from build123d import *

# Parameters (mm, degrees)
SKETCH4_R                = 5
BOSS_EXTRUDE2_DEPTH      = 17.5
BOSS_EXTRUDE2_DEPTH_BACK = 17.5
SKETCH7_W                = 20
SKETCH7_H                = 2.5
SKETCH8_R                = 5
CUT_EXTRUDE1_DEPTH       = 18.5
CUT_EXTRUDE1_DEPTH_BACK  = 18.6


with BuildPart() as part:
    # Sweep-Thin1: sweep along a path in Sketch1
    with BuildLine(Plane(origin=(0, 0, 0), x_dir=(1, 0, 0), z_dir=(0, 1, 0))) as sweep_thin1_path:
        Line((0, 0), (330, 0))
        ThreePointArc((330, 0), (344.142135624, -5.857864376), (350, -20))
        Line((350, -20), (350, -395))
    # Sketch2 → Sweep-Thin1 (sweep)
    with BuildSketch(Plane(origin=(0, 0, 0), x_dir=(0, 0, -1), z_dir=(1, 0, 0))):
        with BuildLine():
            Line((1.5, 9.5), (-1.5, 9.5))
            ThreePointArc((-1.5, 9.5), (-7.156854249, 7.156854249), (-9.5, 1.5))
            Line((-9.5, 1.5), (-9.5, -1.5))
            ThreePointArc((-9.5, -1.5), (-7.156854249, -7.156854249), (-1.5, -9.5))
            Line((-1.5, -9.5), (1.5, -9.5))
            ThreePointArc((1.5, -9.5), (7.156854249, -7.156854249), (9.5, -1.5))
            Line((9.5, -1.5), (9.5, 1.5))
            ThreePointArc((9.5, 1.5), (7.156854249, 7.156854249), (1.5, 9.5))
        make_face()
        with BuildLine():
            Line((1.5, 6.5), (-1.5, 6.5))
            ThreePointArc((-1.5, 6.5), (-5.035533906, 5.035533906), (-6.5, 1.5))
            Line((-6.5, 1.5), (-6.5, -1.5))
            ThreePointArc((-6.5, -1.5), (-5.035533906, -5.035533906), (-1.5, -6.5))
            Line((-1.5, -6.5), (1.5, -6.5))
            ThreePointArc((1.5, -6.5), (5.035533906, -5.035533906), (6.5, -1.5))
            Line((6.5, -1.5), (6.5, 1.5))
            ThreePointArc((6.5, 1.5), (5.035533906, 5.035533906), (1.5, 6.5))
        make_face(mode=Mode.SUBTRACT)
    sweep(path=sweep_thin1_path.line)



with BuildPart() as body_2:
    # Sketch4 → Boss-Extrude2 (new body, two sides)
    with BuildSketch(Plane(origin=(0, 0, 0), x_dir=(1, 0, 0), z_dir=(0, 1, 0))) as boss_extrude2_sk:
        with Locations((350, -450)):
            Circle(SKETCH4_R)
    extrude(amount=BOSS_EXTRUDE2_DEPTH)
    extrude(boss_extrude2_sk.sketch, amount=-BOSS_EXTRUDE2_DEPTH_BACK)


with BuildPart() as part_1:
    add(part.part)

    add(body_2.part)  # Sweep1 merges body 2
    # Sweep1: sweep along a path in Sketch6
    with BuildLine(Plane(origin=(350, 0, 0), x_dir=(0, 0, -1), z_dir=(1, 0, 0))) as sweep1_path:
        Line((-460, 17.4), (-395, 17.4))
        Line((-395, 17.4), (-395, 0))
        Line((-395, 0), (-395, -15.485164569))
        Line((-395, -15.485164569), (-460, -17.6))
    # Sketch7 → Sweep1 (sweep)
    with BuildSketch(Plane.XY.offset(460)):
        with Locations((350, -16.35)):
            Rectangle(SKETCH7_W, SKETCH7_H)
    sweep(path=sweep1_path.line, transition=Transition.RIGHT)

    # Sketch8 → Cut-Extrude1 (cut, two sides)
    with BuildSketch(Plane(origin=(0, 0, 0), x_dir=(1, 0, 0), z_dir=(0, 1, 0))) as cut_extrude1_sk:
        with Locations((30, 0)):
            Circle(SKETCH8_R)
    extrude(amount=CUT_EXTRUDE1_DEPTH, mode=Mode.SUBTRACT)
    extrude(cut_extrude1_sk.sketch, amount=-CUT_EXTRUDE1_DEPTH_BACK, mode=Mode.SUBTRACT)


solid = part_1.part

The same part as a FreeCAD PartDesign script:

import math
import FreeCAD as App
import Part
import Sketcher
from FreeCAD import Vector

doc = App.newDocument("Part")
params = doc.addObject("Spreadsheet::Sheet", "Params")
for row, (alias, value) in enumerate([
    ("sketch1_radius", "8 mm"),
    ("sketch1_radius2", "5 mm"),
    ("sketch1_width", "3 mm"),
    ("sketch2_radius", "20 mm"),
    ("sketch2_width", "330 mm"),
    ("sketch2_height", "375 mm"),
    ("sketch3_diameter", "10 mm"),
    ("pad1_length", "17.5 mm"),
    ("pad1_length2", "17.5 mm"),
    ("sketch4_width", "20 mm"),
    ("sketch4_height", "2.5 mm"),
    ("sketch5_height", "65 mm"),
    ("sketch6_diameter", "10 mm"),
], start=1):
    params.set(f"A{row}", alias)
    params.set(f"B{row}", "=" + value)
    params.setAlias(f"B{row}", alias)

body = doc.addObject("PartDesign::Body", "Body")

sketch1 = body.newObject("Sketcher::SketchObject", "Sketch")
sketch1.AttachmentSupport = (doc.getObject("YZ_Plane"), [""])
sketch1.MapMode = "FlatFace"
sketch1.addGeometry(Part.LineSegment(Vector(9.5, -1.5, 0), Vector(9.5, 1.5, 0)), False)
sketch1.addGeometry(Part.ArcOfCircle(Part.Circle(Vector(1.5, 1.5, 0), Vector(0, 0, 1), 8), math.radians(0), math.radians(90)), False)
sketch1.addGeometry(Part.LineSegment(Vector(1.5, 9.5, 0), Vector(-1.5, 9.5, 0)), False)
sketch1.addGeometry(Part.ArcOfCircle(Part.Circle(Vector(-1.5, 1.5, 0), Vector(0, 0, 1), 8), math.radians(90), math.radians(180)), False)
sketch1.addGeometry(Part.LineSegment(Vector(-9.5, 1.5, 0), Vector(-9.5, -1.5, 0)), False)
sketch1.addGeometry(Part.ArcOfCircle(Part.Circle(Vector(-1.5, -1.5, 0), Vector(0, 0, 1), 8), math.radians(-180), math.radians(-90)), False)
sketch1.addGeometry(Part.LineSegment(Vector(-1.5, -9.5, 0), Vector(1.5, -9.5, 0)), False)
sketch1.addGeometry(Part.ArcOfCircle(Part.Circle(Vector(1.5, -1.5, 0), Vector(0, 0, 1), 8), math.radians(-90), math.radians(0)), False)
sketch1.addGeometry(Part.LineSegment(Vector(6.5, 1.5, 0), Vector(6.5, -1.5, 0)), False)
sketch1.addGeometry(Part.ArcOfCircle(Part.Circle(Vector(1.5, -1.5, 0), Vector(0, 0, 1), 5), math.radians(-90), math.radians(0)), False)
sketch1.addGeometry(Part.LineSegment(Vector(1.5, -6.5, 0), Vector(-1.5, -6.5, 0)), False)
sketch1.addGeometry(Part.ArcOfCircle(Part.Circle(Vector(-1.5, -1.5, 0), Vector(0, 0, 1), 5), math.radians(180), math.radians(270)), False)
sketch1.addGeometry(Part.LineSegment(Vector(-6.5, -1.5, 0), Vector(-6.5, 1.5, 0)), False)
sketch1.addGeometry(Part.ArcOfCircle(Part.Circle(Vector(-1.5, 1.5, 0), Vector(0, 0, 1), 5), math.radians(90), math.radians(180)), False)
sketch1.addGeometry(Part.LineSegment(Vector(-1.5, 6.5, 0), Vector(1.5, 6.5, 0)), False)
sketch1.addGeometry(Part.ArcOfCircle(Part.Circle(Vector(1.5, 1.5, 0), Vector(0, 0, 1), 5), math.radians(0), math.radians(90)), False)
sketch1.addConstraint(Sketcher.Constraint("Tangent", 0, 2, 1, 1))
sketch1.addConstraint(Sketcher.Constraint("Tangent", 1, 2, 2, 1))
sketch1.addConstraint(Sketcher.Constraint("Tangent", 2, 2, 3, 1))
sketch1.addConstraint(Sketcher.Constraint("Tangent", 3, 2, 4, 1))
sketch1.addConstraint(Sketcher.Constraint("Tangent", 4, 2, 5, 1))
sketch1.addConstraint(Sketcher.Constraint("Tangent", 5, 2, 6, 1))
sketch1.addConstraint(Sketcher.Constraint("Tangent", 6, 2, 7, 1))
sketch1.addConstraint(Sketcher.Constraint("Tangent", 7, 2, 0, 1))
sketch1.addConstraint(Sketcher.Constraint("Tangent", 8, 2, 9, 2))
sketch1.addConstraint(Sketcher.Constraint("Tangent", 9, 1, 10, 1))
sketch1.addConstraint(Sketcher.Constraint("Tangent", 10, 2, 11, 2))
sketch1.addConstraint(Sketcher.Constraint("Tangent", 11, 1, 12, 1))
sketch1.addConstraint(Sketcher.Constraint("Tangent", 12, 2, 13, 2))
sketch1.addConstraint(Sketcher.Constraint("Tangent", 13, 1, 14, 1))
sketch1.addConstraint(Sketcher.Constraint("Tangent", 14, 2, 15, 2))
sketch1.addConstraint(Sketcher.Constraint("Tangent", 15, 1, 8, 1))
sketch1.addConstraint(Sketcher.Constraint("Vertical", 0))
sketch1.addConstraint(Sketcher.Constraint("Horizontal", 2))
sketch1.addConstraint(Sketcher.Constraint("Vertical", 4))
sketch1.addConstraint(Sketcher.Constraint("Horizontal", 6))
sketch1.addConstraint(Sketcher.Constraint("Vertical", 8))
sketch1.addConstraint(Sketcher.Constraint("Horizontal", 10))
sketch1.addConstraint(Sketcher.Constraint("Vertical", 12))
sketch1.addConstraint(Sketcher.Constraint("Horizontal", 14))
sketch1.addConstraint(Sketcher.Constraint("Coincident", 9, 3, 7, 3))
sketch1.addConstraint(Sketcher.Constraint("Coincident", 11, 3, 5, 3))
sketch1.addConstraint(Sketcher.Constraint("Coincident", 13, 3, 3, 3))
sketch1.addConstraint(Sketcher.Constraint("Equal", 1, 3))
sketch1.addConstraint(Sketcher.Constraint("Equal", 3, 5))
sketch1.addConstraint(Sketcher.Constraint("Equal", 5, 7))
sketch1.addConstraint(Sketcher.Constraint("Equal", 13, 15))
sketch1.addConstraint(Sketcher.Constraint("Symmetric", 1, 3, 5, 3, -1, 1))
sketch1.addConstraint(Sketcher.Constraint("Equal", 14, 0))
sketch1.addConstraint(Sketcher.Constraint("Radius", 1, 8.0))
sketch1.addConstraint(Sketcher.Constraint("Radius", 9, 5.0))
sketch1.addConstraint(Sketcher.Constraint("DistanceX", 2, 2, 2, 1, 3.0))
sketch1.setExpression("Constraints[33]", "Params.sketch1_radius")
sketch1.setExpression("Constraints[34]", "Params.sketch1_radius2")
sketch1.setExpression("Constraints[35]", "Params.sketch1_width")

sketch2 = body.newObject("Sketcher::SketchObject", "Sketch001")
sketch2.AttachmentSupport = (doc.getObject("XZ_Plane"), [""])
sketch2.MapMode = "FlatFace"
sketch2.addGeometry(Part.LineSegment(Vector(0, 0, 0), Vector(330, 0, 0)), False)
sketch2.addGeometry(Part.ArcOfCircle(Part.Circle(Vector(330, 20, 0), Vector(0, 0, 1), 20), math.radians(-90), math.radians(0)), False)
sketch2.addGeometry(Part.LineSegment(Vector(350, 20, 0), Vector(350, 395, 0)), False)
sketch2.addConstraint(Sketcher.Constraint("Tangent", 0, 2, 1, 1))
sketch2.addConstraint(Sketcher.Constraint("Tangent", 1, 2, 2, 1))
sketch2.addConstraint(Sketcher.Constraint("Horizontal", 0))
sketch2.addConstraint(Sketcher.Constraint("Vertical", 2))
sketch2.addConstraint(Sketcher.Constraint("Coincident", 0, 1, -1, 1))
sketch2.addConstraint(Sketcher.Constraint("Radius", 1, 20.0))
sketch2.addConstraint(Sketcher.Constraint("DistanceX", 0, 1, 0, 2, 330.0))
sketch2.addConstraint(Sketcher.Constraint("DistanceY", 2, 1, 2, 2, 375.0))
sketch2.setExpression("Constraints[5]", "Params.sketch2_radius")
sketch2.setExpression("Constraints[6]", "Params.sketch2_width")
sketch2.setExpression("Constraints[7]", "Params.sketch2_height")
doc.recompute()

additivepipe = body.newObject("PartDesign::AdditivePipe", "AdditivePipe")
additivepipe.Profile = sketch1
additivepipe.Spine = (sketch2, ["Edge1", "Edge2", "Edge3"])
body2 = doc.addObject("PartDesign::Body", "Body001")

sketch3 = body2.newObject("Sketcher::SketchObject", "Sketch002")
sketch3.AttachmentSupport = (doc.getObject("XZ_Plane001"), [""])
sketch3.MapMode = "FlatFace"
sketch3.addGeometry(Part.Circle(Vector(350, 450, 0), Vector(0, 0, 1), 5), False)
sketch3.addConstraint(Sketcher.Constraint("Diameter", 0, 10.0))
sketch3.addConstraint(Sketcher.Constraint("DistanceX", -1, 1, 0, 3, 350.0))
sketch3.addConstraint(Sketcher.Constraint("DistanceY", -1, 1, 0, 3, 450.0))
sketch3.setExpression("Constraints[0]", "Params.sketch3_diameter")
pad1 = body2.newObject("PartDesign::Pad", "Pad")
pad1.Profile = sketch3
pad1.Type = "TwoLengths"
pad1.setExpression("Length", "Params.pad1_length")
pad1.setExpression("Length2", "Params.pad1_length2")
pad1.Reversed = True
body.AllowCompound = True
doc.recompute()

boolean = body.newObject("PartDesign::Boolean", "Boolean")
boolean.Type = "Fuse"
boolean.addObjects([body2])

sketch4 = body.newObject("Sketcher::SketchObject", "Sketch003")
sketch4.AttachmentSupport = (doc.getObject("XY_Plane"), [""])
sketch4.MapMode = "FlatFace"
sketch4.AttachmentOffset = App.Placement(Vector(0, 0, 460), App.Rotation())
sketch4.addGeometry(Part.LineSegment(Vector(340, -15.1, 0), Vector(340, -17.6, 0)), False)
sketch4.addGeometry(Part.LineSegment(Vector(340, -17.6, 0), Vector(360, -17.6, 0)), False)
sketch4.addGeometry(Part.LineSegment(Vector(360, -17.6, 0), Vector(360, -15.1, 0)), False)
sketch4.addGeometry(Part.LineSegment(Vector(360, -15.1, 0), Vector(340, -15.1, 0)), False)
sketch4.addConstraint(Sketcher.Constraint("Coincident", 0, 2, 1, 1))
sketch4.addConstraint(Sketcher.Constraint("Coincident", 1, 2, 2, 1))
sketch4.addConstraint(Sketcher.Constraint("Coincident", 2, 2, 3, 1))
sketch4.addConstraint(Sketcher.Constraint("Coincident", 3, 2, 0, 1))
sketch4.addConstraint(Sketcher.Constraint("Vertical", 0))
sketch4.addConstraint(Sketcher.Constraint("Horizontal", 1))
sketch4.addConstraint(Sketcher.Constraint("Vertical", 2))
sketch4.addConstraint(Sketcher.Constraint("Horizontal", 3))
sketch4.addConstraint(Sketcher.Constraint("DistanceX", 1, 1, 1, 2, 20.0))
sketch4.addConstraint(Sketcher.Constraint("DistanceY", 0, 2, 0, 1, 2.5))
sketch4.addConstraint(Sketcher.Constraint("DistanceX", -1, 1, 0, 2, 340.0))
sketch4.addConstraint(Sketcher.Constraint("DistanceY", 0, 2, -1, 1, 17.6))
sketch4.setExpression("Constraints[8]", "Params.sketch4_width")
sketch4.setExpression("Constraints[9]", "Params.sketch4_height")

sketch5 = body.newObject("Sketcher::SketchObject", "Sketch004")
sketch5.AttachmentSupport = (doc.getObject("YZ_Plane"), [""])
sketch5.MapMode = "FlatFace"
sketch5.AttachmentOffset = App.Placement(Vector(0, 0, 350), App.Rotation())
sketch5.addGeometry(Part.LineSegment(Vector(17, 460, 0), Vector(17, 395, 0)), False)
sketch5.addGeometry(Part.LineSegment(Vector(17, 395, 0), Vector(-15, 395, 0)), False)
sketch5.addGeometry(Part.LineSegment(Vector(-15, 395, 0), Vector(-18, 460, 0)), False)
sketch5.addConstraint(Sketcher.Constraint("Coincident", 0, 2, 1, 1))
sketch5.addConstraint(Sketcher.Constraint("Coincident", 1, 2, 2, 1))
sketch5.addConstraint(Sketcher.Constraint("Vertical", 0))
sketch5.addConstraint(Sketcher.Constraint("Horizontal", 1))
sketch5.addConstraint(Sketcher.Constraint("Horizontal", 0, 1, 2, 2))
sketch5.addConstraint(Sketcher.Constraint("DistanceY", 0, 2, 0, 1, 65.0))
sketch5.addConstraint(Sketcher.Constraint("DistanceY", -1, 1, 0, 1, 460.0))
sketch5.addConstraint(Sketcher.Constraint("DistanceX", 2, 2, 0, 1, 35.0))
sketch5.addConstraint(Sketcher.Constraint("DistanceX", -1, 1, 0, 1, 17.4))
sketch5.addConstraint(Sketcher.Constraint("DistanceX", 1, 2, 1, 1, 32.885165))
sketch5.setExpression("Constraints[5]", "Params.sketch5_height")
doc.recompute()

additivepipe2 = body.newObject("PartDesign::AdditivePipe", "AdditivePipe001")
additivepipe2.Profile = sketch4
additivepipe2.Spine = (sketch5, ["Edge1", "Edge2", "Edge3"])
additivepipe2.Transition = "Right corner"

sketch6 = body.newObject("Sketcher::SketchObject", "Sketch005")
sketch6.AttachmentSupport = (doc.getObject("XZ_Plane"), [""])
sketch6.MapMode = "FlatFace"
sketch6.addGeometry(Part.Circle(Vector(30, 0, 0), Vector(0, 0, 1), 5), False)
sketch6.addConstraint(Sketcher.Constraint("PointOnObject", 0, 3, -1))
sketch6.addConstraint(Sketcher.Constraint("Diameter", 0, 10.0))
sketch6.addConstraint(Sketcher.Constraint("DistanceX", -1, 1, 0, 3, 30.0))
sketch6.setExpression("Constraints[1]", "Params.sketch6_diameter")
pocket1 = body.newObject("PartDesign::Pocket", "Pocket")
pocket1.Profile = sketch6
pocket1.Type = "ThroughAll"
pocket1.Midplane = True

doc.recompute()
